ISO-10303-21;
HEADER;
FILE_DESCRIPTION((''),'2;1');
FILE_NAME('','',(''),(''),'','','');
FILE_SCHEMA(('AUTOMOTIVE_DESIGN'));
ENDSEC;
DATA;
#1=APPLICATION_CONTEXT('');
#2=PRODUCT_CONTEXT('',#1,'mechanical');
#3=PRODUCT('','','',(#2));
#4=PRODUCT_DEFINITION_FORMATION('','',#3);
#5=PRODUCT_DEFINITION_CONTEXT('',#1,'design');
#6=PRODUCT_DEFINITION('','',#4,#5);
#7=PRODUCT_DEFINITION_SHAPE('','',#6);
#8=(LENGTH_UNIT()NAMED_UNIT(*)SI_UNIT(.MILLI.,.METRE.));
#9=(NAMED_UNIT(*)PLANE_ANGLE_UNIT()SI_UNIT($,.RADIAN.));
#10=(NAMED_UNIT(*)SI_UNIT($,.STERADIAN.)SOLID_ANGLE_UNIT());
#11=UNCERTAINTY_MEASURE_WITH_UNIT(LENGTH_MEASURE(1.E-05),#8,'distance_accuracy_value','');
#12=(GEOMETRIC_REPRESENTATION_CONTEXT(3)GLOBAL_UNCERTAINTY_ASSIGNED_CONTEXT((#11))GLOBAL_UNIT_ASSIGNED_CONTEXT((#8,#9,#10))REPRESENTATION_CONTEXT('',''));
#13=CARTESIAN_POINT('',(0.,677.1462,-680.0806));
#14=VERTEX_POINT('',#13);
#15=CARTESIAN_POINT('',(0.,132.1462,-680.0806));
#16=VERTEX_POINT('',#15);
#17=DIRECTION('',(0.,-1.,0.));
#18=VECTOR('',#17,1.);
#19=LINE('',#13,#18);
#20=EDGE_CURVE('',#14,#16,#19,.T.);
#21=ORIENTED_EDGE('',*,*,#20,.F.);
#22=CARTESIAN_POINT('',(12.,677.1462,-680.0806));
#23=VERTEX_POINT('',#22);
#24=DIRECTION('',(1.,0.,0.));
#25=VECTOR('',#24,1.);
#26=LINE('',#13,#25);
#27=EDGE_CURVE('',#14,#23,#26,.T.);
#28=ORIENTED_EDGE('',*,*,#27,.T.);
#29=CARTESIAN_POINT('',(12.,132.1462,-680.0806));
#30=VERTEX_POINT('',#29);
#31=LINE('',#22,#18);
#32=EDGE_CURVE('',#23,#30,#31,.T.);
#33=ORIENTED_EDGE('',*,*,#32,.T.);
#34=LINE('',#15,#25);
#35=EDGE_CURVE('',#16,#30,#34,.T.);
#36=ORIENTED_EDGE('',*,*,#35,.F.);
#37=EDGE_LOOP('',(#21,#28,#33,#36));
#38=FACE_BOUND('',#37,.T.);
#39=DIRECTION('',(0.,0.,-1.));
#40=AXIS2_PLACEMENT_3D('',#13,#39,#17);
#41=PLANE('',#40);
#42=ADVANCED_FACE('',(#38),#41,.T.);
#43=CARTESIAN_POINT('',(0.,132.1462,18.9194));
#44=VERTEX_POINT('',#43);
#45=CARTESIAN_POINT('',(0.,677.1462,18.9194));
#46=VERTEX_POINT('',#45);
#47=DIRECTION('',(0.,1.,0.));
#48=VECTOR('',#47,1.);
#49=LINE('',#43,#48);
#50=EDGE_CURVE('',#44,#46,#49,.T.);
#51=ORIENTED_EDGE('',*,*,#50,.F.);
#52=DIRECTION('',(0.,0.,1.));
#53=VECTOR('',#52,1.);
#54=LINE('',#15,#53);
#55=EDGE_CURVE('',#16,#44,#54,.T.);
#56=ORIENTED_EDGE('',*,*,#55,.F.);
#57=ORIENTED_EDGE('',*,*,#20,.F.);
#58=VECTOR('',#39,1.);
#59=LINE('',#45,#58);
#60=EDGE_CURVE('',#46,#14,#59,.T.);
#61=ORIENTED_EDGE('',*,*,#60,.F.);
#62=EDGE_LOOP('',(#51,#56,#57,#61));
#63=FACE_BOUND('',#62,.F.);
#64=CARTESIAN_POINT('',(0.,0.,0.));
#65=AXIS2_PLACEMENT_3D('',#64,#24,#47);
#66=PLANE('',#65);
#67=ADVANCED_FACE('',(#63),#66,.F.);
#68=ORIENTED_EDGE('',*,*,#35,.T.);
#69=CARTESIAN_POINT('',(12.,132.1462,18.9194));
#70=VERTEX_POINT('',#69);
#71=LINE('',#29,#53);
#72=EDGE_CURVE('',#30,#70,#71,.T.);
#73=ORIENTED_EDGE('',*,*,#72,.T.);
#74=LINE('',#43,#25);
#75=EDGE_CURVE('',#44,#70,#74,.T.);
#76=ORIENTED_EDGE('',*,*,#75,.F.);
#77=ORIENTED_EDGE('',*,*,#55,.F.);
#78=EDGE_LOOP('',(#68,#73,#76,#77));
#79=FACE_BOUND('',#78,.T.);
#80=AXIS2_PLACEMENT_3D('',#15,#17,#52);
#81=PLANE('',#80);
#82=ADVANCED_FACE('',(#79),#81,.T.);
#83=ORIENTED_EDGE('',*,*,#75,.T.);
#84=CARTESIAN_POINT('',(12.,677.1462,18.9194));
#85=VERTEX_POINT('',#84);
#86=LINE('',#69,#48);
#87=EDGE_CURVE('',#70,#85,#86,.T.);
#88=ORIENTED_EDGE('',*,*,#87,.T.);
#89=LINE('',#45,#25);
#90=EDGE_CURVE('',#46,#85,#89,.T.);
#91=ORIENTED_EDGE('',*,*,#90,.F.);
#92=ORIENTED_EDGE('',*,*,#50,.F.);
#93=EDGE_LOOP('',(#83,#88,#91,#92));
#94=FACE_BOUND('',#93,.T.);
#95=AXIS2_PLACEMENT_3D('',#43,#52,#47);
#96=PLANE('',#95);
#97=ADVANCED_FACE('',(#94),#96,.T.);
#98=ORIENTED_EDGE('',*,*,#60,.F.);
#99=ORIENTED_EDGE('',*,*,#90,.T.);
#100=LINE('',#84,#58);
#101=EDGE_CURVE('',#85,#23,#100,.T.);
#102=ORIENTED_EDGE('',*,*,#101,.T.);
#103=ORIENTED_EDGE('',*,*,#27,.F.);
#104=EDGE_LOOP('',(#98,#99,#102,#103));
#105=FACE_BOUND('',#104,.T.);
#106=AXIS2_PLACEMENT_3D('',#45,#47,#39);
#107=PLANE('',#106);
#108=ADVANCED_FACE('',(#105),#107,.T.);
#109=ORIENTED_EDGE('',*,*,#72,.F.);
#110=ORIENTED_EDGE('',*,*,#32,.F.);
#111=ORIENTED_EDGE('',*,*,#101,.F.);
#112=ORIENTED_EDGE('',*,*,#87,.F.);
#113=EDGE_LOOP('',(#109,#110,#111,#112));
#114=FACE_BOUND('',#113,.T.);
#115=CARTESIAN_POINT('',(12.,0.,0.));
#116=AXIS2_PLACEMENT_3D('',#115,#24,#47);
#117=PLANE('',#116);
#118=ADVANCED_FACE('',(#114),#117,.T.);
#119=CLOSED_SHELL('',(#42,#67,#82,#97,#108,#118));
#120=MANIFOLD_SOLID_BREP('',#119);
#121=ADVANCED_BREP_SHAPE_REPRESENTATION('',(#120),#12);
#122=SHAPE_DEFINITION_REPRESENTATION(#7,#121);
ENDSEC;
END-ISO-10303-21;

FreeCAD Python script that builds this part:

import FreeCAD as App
import Part
import Sketcher
from FreeCAD import Vector
Q = App.Units.Quantity


def add_polygon(sketch, points):
    """Adds a closed chain of lines whose ends are joined by coincident constraints."""
    first, n = sketch.GeometryCount, len(points)
    for a, b in zip(points, points[1:] + points[:1]):
        sketch.addGeometry(Part.LineSegment(App.Vector(*a, 0), App.Vector(*b, 0)), False)
    for i in range(n):
        sketch.addConstraint(Sketcher.Constraint("Coincident", first + i, 2, first + (i + 1) % n, 1))

doc = App.newDocument("Part")
body = doc.addObject("PartDesign::Body", "Body")

# Sketch on YZ plane
sketch1 = doc.addObject("Sketcher::SketchObject", "Sketch")
body.addObject(sketch1)
sketch1.AttachmentSupport = (doc.YZ_Plane, [""])
sketch1.MapMode = "FlatFace"
add_polygon(sketch1, [(677, 19), (132, 19), (132, -680), (677, -680)])  # lines 0-3
sketch1.addConstraint([
    Sketcher.Constraint("Horizontal", 0),
    Sketcher.Constraint("Vertical", 1),
    Sketcher.Constraint("Horizontal", 2),
    Sketcher.Constraint("Vertical", 3),
    Sketcher.Constraint("DistanceX", 0, 2, 0, 1, Q("545 mm")),
    Sketcher.Constraint("DistanceY", 1, 2, 1, 1, Q("699 mm")),
    Sketcher.Constraint("DistanceX", -1, 1, 0, 2, Q("132.1462 mm")),
    Sketcher.Constraint("DistanceY", -1, 1, 0, 2, Q("18.9194 mm")),
])
pad1 = doc.addObject("PartDesign::Pad", "Pad")
body.addObject(pad1)
pad1.Profile = sketch1
pad1.Length = 12

doc.recompute()
